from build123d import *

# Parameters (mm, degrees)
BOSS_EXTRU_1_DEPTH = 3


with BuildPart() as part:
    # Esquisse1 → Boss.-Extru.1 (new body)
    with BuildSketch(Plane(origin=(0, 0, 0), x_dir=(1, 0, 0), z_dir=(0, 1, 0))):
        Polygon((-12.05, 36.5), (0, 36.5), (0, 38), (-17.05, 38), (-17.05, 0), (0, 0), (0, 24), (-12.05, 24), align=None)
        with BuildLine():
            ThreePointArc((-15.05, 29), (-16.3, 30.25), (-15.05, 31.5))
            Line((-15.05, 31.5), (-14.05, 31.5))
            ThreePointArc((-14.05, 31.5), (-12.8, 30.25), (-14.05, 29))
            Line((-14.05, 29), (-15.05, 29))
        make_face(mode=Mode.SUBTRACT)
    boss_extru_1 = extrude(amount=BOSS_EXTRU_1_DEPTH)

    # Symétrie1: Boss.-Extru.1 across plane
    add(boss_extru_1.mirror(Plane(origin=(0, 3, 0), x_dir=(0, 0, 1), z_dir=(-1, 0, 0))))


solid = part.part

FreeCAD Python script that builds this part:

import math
import FreeCAD as App
import Part
import Sketcher
from FreeCAD import Vector
Q = App.Units.Quantity

doc = App.newDocument("Part")
body = doc.addObject("PartDesign::Body", "Body")

# Sketch on XZ plane
sketch1 = body.newObject("Sketcher::SketchObject", "Sketch")
sketch1.AttachmentSupport = (doc.getObject("XZ_Plane"), [""])
sketch1.MapMode = "FlatFace"
sketch1.addGeometry([
    Part.LineSegment(Vector(-12.1, -36.5, 0), Vector(0, -36.5, 0)),  # 0
    Part.LineSegment(Vector(0, -36.5, 0), Vector(0, -38, 0)),  # 1
    Part.LineSegment(Vector(0, -38, 0), Vector(-17.1, -38, 0)),  # 2
    Part.LineSegment(Vector(-17.1, -38, 0), Vector(-17.1, 0, 0)),  # 3
    Part.LineSegment(Vector(-17.1, 0, 0), Vector(0, 0, 0)),  # 4
    Part.LineSegment(Vector(0, 0, 0), Vector(0, -24, 0)),  # 5
    Part.LineSegment(Vector(0, -24, 0), Vector(-12.1, -24, 0)),  # 6
    Part.LineSegment(Vector(-12.1, -24, 0), Vector(-12.1, -36.5, 0)),  # 7
    Part.LineSegment(Vector(-14.1, -29, 0), Vector(-15.1, -29, 0)),  # 8
    Part.ArcOfCircle(Part.Circle(Vector(-15.1, -30.2, 0), Vector(0, 0, 1), 1.2), math.radians(90), math.radians(270)),  # 9
    Part.LineSegment(Vector(-15.1, -31.5, 0), Vector(-14.1, -31.5, 0)),  # 10
    Part.ArcOfCircle(Part.Circle(Vector(-14.1, -30.2, 0), Vector(0, 0, 1), 1.2), math.radians(-90), math.radians(90)),  # 11
], False)
sketch1.addConstraint([
    Sketcher.Constraint("Coincident", 0, 2, 1, 1),
    Sketcher.Constraint("Coincident", 1, 2, 2, 1),
    Sketcher.Constraint("Coincident", 2, 2, 3, 1),
    Sketcher.Constraint("Coincident", 3, 2, 4, 1),
    Sketcher.Constraint("Coincident", 4, 2, 5, 1),
    Sketcher.Constraint("Coincident", 5, 2, 6, 1),
    Sketcher.Constraint("Coincident", 6, 2, 7, 1),
    Sketcher.Constraint("Coincident", 7, 2, 0, 1),
    Sketcher.Constraint("Tangent", 8, 2, 9, 1),
    Sketcher.Constraint("Tangent", 9, 2, 10, 1),
    Sketcher.Constraint("Tangent", 10, 2, 11, 1),
    Sketcher.Constraint("Tangent", 11, 2, 8, 1),
    Sketcher.Constraint("Horizontal", 0),
    Sketcher.Constraint("Vertical", 1),
    Sketcher.Constraint("Horizontal", 2),
    Sketcher.Constraint("Vertical", 3),
    Sketcher.Constraint("Horizontal", 4),
    Sketcher.Constraint("Vertical", 5),
    Sketcher.Constraint("Horizontal", 6),
    Sketcher.Constraint("Vertical", 7),
    Sketcher.Constraint("Horizontal", 8),
    Sketcher.Constraint("Horizontal", 10),
    Sketcher.Constraint("Coincident", 4, 2, -1, 1),
    Sketcher.Constraint("PointOnObject", 0, 2, -2),
    Sketcher.Constraint("DistanceX", 8, 2, 8, 1, Q("1 mm")),
    Sketcher.Constraint("DistanceY", 3, 1, 3, 2, Q("38 mm")),
    Sketcher.Constraint("DistanceY", 5, 2, 5, 1, Q("24 mm")),
    Sketcher.Constraint("Radius", 9, Q("1.25 mm")),
    Sketcher.Constraint("DistanceY", 1, 2, 1, 1, Q("1.5 mm")),
    Sketcher.Constraint("DistanceY", 8, 2, -1, 1, Q("29 mm")),
    Sketcher.Constraint("DistanceX", 2, 2, 9, 3, Q("2 mm")),
    Sketcher.Constraint("DistanceX", 11, 3, 6, 2, Q("2 mm")),
    Sketcher.Constraint("DistanceX", 0, 1, 0, 2, Q("12.05 mm")),
])
pad1 = body.newObject("PartDesign::Pad", "Pad")
pad1.Profile = sketch1
pad1.Length = 3
pad1.Reversed = True
doc.recompute()

mirrored = body.newObject("PartDesign::Mirrored", "Mirrored")
mirrored.Originals = [pad1]
mirrored.MirrorPlane = (doc.getObject("YZ_Plane"), [""])
body.Tip = mirrored

doc.recompute()
